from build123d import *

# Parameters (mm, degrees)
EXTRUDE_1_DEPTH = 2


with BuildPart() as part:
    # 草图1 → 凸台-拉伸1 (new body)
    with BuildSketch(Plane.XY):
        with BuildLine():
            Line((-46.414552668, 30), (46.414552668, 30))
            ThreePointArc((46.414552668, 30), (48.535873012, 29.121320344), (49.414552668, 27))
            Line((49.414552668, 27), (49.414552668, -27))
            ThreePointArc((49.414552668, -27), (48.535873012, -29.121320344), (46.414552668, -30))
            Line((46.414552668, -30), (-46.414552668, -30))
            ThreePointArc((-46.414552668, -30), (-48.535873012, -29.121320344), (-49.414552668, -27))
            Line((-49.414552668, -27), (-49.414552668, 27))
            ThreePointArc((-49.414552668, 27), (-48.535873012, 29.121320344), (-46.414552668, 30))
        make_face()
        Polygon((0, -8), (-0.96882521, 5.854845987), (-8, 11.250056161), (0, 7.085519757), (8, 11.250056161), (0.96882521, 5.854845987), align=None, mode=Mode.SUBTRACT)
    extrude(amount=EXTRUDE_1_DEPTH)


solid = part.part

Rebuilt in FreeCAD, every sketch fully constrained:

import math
import FreeCAD as App
import Part
import Sketcher

V = App.Vector
Q = App.Units.Quantity


def add_polygon(sketch, points):
    """Adds a closed chain of lines whose ends are joined by coincident constraints."""
    first, n = sketch.GeometryCount, len(points)
    for a, b in zip(points, points[1:] + points[:1]):
        sketch.addGeometry(Part.LineSegment(App.Vector(*a, 0), App.Vector(*b, 0)), False)
    for i in range(n):
        sketch.addConstraint(Sketcher.Constraint("Coincident", first + i, 2, first + (i + 1) % n, 1))

doc = App.newDocument("Part")
body = doc.addObject("PartDesign::Body", "Body")

sketch1 = body.newObject("Sketcher::SketchObject", "Sketch")
sketch1.AttachmentSupport = (doc.getObject("XY_Plane"), [""])
sketch1.MapMode = "FlatFace"
sketch1.addGeometry(Part.LineSegment(V(46.4, 30, 0), V(-46.4, 30, 0)), False)
sketch1.addGeometry(Part.ArcOfCircle(Part.Circle(V(-46.4, 27, 0), V(0, 0, 1), 3), math.radians(90), math.radians(180)), False)
sketch1.addGeometry(Part.LineSegment(V(-49.4, 27, 0), V(-49.4, -27, 0)), False)
sketch1.addGeometry(Part.ArcOfCircle(Part.Circle(V(-46.4, -27, 0), V(0, 0, 1), 3), math.radians(180), math.radians(270)), False)
sketch1.addGeometry(Part.LineSegment(V(-46.4, -30, 0), V(46.4, -30, 0)), False)
sketch1.addGeometry(Part.ArcOfCircle(Part.Circle(V(46.4, -27, 0), V(0, 0, 1), 3), math.radians(-90), math.radians(0)), False)
sketch1.addGeometry(Part.LineSegment(V(49.4, -27, 0), V(49.4, 27, 0)), False)
sketch1.addGeometry(Part.ArcOfCircle(Part.Circle(V(46.4, 27, 0), V(0, 0, 1), 3), math.radians(0), math.radians(90)), False)
add_polygon(sketch1, [(0, -8), (-1, 5.9), (-8, 11.3), (0, 7.1), (8, 11.3), (1, 5.9)])
sketch1.addConstraint([
    Sketcher.Constraint("Tangent", 0, 2, 1, 1),
    Sketcher.Constraint("Tangent", 1, 2, 2, 1),
    Sketcher.Constraint("Tangent", 2, 2, 3, 1),
    Sketcher.Constraint("Tangent", 3, 2, 4, 1),
    Sketcher.Constraint("Tangent", 4, 2, 5, 1),
    Sketcher.Constraint("Tangent", 5, 2, 6, 1),
    Sketcher.Constraint("Tangent", 6, 2, 7, 1),
    Sketcher.Constraint("Tangent", 7, 2, 0, 1),
    Sketcher.Constraint("Horizontal", 0),
    Sketcher.Constraint("Vertical", 2),
    Sketcher.Constraint("Horizontal", 4),
    Sketcher.Constraint("Vertical", 6),
    Sketcher.Constraint("Equal", 1, 3),
    Sketcher.Constraint("Equal", 3, 5),
    Sketcher.Constraint("Equal", 5, 7),
    Sketcher.Constraint("Symmetric", 1, 3, 5, 3, -1, 1),
    Sketcher.Constraint("Symmetric", 9, 2, 11, 2, -2),
    Sketcher.Constraint("Symmetric", 8, 2, 12, 2, -2),
    Sketcher.Constraint("PointOnObject", 10, 2, -2),
    Sketcher.Constraint("PointOnObject", 13, 2, -2),
    Sketcher.Constraint("Radius", 1, 3.0),
    Sketcher.Constraint("DistanceY", 2, 2, 2, 1, 54.0),
    Sketcher.Constraint("Angle", 8, Q("94 deg")),
    Sketcher.Constraint("DistanceX", 9, 2, -1, 1, 8.0),
    Sketcher.Constraint("DistanceY", 13, 2, -1, 1, 8.0),
    Sketcher.Constraint("Angle", 9, Q("142.5 deg")),
    Sketcher.Constraint("Angle", 10, Q("-27.5 deg")),
    Sketcher.Constraint("Distance", 9, 8.862602),
    Sketcher.Constraint("DistanceX", 0, 2, 0, 1, 92.829105),
])
pad1 = body.newObject("PartDesign::Pad", "Pad")
pad1.Profile = sketch1
pad1.Length = 2

doc.recompute()
